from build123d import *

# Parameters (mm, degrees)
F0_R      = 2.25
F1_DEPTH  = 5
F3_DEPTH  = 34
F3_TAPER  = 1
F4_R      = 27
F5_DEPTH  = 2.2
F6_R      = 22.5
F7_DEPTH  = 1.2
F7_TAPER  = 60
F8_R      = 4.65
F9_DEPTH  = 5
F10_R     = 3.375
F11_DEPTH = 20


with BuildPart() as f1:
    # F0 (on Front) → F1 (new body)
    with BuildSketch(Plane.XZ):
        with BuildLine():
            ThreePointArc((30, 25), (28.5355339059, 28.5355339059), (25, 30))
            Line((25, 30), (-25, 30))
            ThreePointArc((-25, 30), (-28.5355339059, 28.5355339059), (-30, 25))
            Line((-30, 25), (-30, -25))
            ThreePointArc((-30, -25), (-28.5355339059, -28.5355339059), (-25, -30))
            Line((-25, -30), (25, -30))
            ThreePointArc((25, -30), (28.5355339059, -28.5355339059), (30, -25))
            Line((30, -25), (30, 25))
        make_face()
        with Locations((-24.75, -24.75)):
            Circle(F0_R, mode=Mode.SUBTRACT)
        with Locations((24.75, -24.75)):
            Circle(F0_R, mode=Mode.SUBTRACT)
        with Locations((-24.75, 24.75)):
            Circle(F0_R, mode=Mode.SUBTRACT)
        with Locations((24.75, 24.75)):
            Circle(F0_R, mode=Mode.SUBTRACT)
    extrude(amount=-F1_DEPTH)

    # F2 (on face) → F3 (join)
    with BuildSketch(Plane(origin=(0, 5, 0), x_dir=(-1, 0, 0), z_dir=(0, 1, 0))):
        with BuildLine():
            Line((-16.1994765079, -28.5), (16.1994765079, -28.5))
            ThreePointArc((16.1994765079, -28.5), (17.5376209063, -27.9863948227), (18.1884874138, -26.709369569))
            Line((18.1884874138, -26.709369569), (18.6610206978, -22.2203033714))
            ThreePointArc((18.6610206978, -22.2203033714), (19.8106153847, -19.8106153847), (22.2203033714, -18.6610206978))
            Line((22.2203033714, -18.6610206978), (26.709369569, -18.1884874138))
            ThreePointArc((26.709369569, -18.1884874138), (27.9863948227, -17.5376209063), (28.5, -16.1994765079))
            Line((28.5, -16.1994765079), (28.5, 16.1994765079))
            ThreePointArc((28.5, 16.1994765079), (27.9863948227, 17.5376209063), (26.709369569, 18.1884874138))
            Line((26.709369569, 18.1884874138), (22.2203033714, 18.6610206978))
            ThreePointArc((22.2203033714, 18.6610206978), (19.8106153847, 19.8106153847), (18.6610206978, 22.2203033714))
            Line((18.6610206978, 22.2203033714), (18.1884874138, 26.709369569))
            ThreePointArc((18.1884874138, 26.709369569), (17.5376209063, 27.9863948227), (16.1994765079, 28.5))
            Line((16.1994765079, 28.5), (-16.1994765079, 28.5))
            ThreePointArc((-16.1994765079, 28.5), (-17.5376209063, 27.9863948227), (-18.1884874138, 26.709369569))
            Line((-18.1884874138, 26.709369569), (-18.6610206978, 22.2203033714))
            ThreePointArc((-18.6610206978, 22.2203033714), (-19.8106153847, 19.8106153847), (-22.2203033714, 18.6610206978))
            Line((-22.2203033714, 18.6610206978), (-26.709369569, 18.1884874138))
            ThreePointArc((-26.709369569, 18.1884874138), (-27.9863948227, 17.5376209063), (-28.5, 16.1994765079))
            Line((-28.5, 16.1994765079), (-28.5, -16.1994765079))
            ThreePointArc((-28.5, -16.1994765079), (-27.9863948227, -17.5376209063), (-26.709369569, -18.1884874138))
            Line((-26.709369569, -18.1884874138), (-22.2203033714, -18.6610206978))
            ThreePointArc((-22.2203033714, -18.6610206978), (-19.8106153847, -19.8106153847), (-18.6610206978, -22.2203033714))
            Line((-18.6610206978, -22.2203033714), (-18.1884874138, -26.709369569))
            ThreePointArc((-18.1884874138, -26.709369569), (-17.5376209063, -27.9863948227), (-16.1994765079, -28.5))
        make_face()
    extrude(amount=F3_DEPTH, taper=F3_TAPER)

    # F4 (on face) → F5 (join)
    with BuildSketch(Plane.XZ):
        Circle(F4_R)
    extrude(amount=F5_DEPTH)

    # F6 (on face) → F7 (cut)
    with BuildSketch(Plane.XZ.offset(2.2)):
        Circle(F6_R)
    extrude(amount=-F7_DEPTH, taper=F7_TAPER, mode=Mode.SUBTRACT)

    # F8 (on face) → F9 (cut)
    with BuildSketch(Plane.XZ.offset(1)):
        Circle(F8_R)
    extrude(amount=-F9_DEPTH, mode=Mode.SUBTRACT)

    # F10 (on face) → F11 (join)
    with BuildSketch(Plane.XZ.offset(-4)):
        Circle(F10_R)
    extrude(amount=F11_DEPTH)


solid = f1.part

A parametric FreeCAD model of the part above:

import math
import FreeCAD as App
import Part
import Sketcher
from FreeCAD import Vector
Q = App.Units.Quantity

doc = App.newDocument("Part")
body = doc.addObject("PartDesign::Body", "Body")

# Sketch on XZ plane
sketch1 = body.newObject("Sketcher::SketchObject", "Sketch")
sketch1.AttachmentSupport = (doc.getObject("XZ_Plane"), [""])
sketch1.MapMode = "FlatFace"
sketch1.addGeometry([
    Part.ArcOfCircle(Part.Circle(Vector(25, 25, 0), Vector(0, 0, 1), 5), math.radians(0), math.radians(90)),  # 0
    Part.LineSegment(Vector(25, 30, 0), Vector(-25, 30, 0)),  # 1
    Part.ArcOfCircle(Part.Circle(Vector(-25, 25, 0), Vector(0, 0, 1), 5), math.radians(90), math.radians(180)),  # 2
    Part.LineSegment(Vector(-30, 25, 0), Vector(-30, -25, 0)),  # 3
    Part.ArcOfCircle(Part.Circle(Vector(-25, -25, 0), Vector(0, 0, 1), 5), math.radians(180), math.radians(270)),  # 4
    Part.LineSegment(Vector(-25, -30, 0), Vector(25, -30, 0)),  # 5
    Part.ArcOfCircle(Part.Circle(Vector(25, -25, 0), Vector(0, 0, 1), 5), math.radians(-90), math.radians(0)),  # 6
    Part.LineSegment(Vector(30, -25, 0), Vector(30, 25, 0)),  # 7
    Part.Circle(Vector(-24.75, -24.75, 0), Vector(0, 0, 1), 2.25),  # 8
    Part.Circle(Vector(24.75, -24.75, 0), Vector(0, 0, 1), 2.25),  # 9
    Part.Circle(Vector(-24.75, 24.75, 0), Vector(0, 0, 1), 2.25),  # 10
    Part.Circle(Vector(24.75, 24.75, 0), Vector(0, 0, 1), 2.25),  # 11
], False)
sketch1.addConstraint([
    Sketcher.Constraint("Tangent", 0, 2, 1, 1),
    Sketcher.Constraint("Tangent", 1, 2, 2, 1),
    Sketcher.Constraint("Tangent", 2, 2, 3, 1),
    Sketcher.Constraint("Tangent", 3, 2, 4, 1),
    Sketcher.Constraint("Tangent", 4, 2, 5, 1),
    Sketcher.Constraint("Tangent", 5, 2, 6, 1),
    Sketcher.Constraint("Tangent", 6, 2, 7, 1),
    Sketcher.Constraint("Tangent", 7, 2, 0, 1),
    Sketcher.Constraint("Horizontal", 1),
    Sketcher.Constraint("Vertical", 3),
    Sketcher.Constraint("Horizontal", 5),
    Sketcher.Constraint("Vertical", 7),
    Sketcher.Constraint("Equal", 0, 2),
    Sketcher.Constraint("Equal", 2, 4),
    Sketcher.Constraint("Equal", 4, 6),
    Sketcher.Constraint("Equal", 8, 9),
    Sketcher.Constraint("Equal", 9, 10),
    Sketcher.Constraint("Equal", 10, 11),
    Sketcher.Constraint("Symmetric", 0, 3, 4, 3, -1, 1),
    Sketcher.Constraint("Symmetric", 9, 3, 10, 3, -1, 1),
    Sketcher.Constraint("Symmetric", 8, 3, 11, 3, -1, 1),
    Sketcher.Constraint("Symmetric", 8, 3, 9, 3, -2),
    Sketcher.Constraint("Equal", 5, 3),
    Sketcher.Constraint("Radius", 0, Q("5 mm")),
    Sketcher.Constraint("Diameter", 8, Q("4.5 mm")),
    Sketcher.Constraint("DistanceX", 1, 2, 1, 1, Q("50 mm")),
    Sketcher.Constraint("DistanceX", 8, 3, 9, 3, Q("49.5 mm")),
    Sketcher.Constraint("DistanceY", 8, 3, 10, 3, Q("49.5 mm")),
])
pad1 = body.newObject("PartDesign::Pad", "Pad")
pad1.Profile = sketch1
pad1.Length = 5
pad1.Reversed = True

# Sketch on XZ plane
sketch2 = body.newObject("Sketcher::SketchObject", "Sketch001")
sketch2.AttachmentSupport = (doc.getObject("XZ_Plane"), [""])
sketch2.MapMode = "FlatFace"
sketch2.AttachmentOffset = App.Placement(Vector(0, 0, -5), App.Rotation())
sketch2.addGeometry([
    Part.LineSegment(Vector(16.199477, -28.5, 0), Vector(-16.199477, -28.5, 0)),  # 0
    Part.ArcOfCircle(Part.Circle(Vector(-16.199477, -26.5, 0), Vector(0, 0, 1), 2), math.radians(-173.990994), math.radians(-90)),  # 1
    Part.LineSegment(Vector(-18.188487, -26.70937, 0), Vector(-18.661021, -22.220303, 0)),  # 2
    Part.ArcOfCircle(Part.Circle(Vector(-22.639043, -22.639043, 0), Vector(0, 0, 1), 4), math.radians(6.009006), math.radians(83.990994)),  # 3
    Part.LineSegment(Vector(-22.220303, -18.661021, 0), Vector(-26.70937, -18.188487, 0)),  # 4
    Part.ArcOfCircle(Part.Circle(Vector(-26.5, -16.199477, 0), Vector(0, 0, 1), 2), math.radians(180), math.radians(263.990994)),  # 5
    Part.LineSegment(Vector(-28.5, -16.199477, 0), Vector(-28.5, 16.199477, 0)),  # 6
    Part.ArcOfCircle(Part.Circle(Vector(-26.5, 16.199477, 0), Vector(0, 0, 1), 2), math.radians(96.009006), math.radians(180)),  # 7
    Part.LineSegment(Vector(-26.70937, 18.188487, 0), Vector(-22.220303, 18.661021, 0)),  # 8
    Part.ArcOfCircle(Part.Circle(Vector(-22.639043, 22.639043, 0), Vector(0, 0, 1), 4), math.radians(-83.990994), math.radians(-6.009006)),  # 9
    Part.LineSegment(Vector(-18.661021, 22.220303, 0), Vector(-18.188487, 26.70937, 0)),  # 10
    Part.ArcOfCircle(Part.Circle(Vector(-16.199477, 26.5, 0), Vector(0, 0, 1), 2), math.radians(90), math.radians(173.990994)),  # 11
    Part.LineSegment(Vector(-16.199477, 28.5, 0), Vector(16.199477, 28.5, 0)),  # 12
    Part.ArcOfCircle(Part.Circle(Vector(16.199477, 26.5, 0), Vector(0, 0, 1), 2), math.radians(6.009006), math.radians(90)),  # 13
    Part.LineSegment(Vector(18.188487, 26.70937, 0), Vector(18.661021, 22.220303, 0)),  # 14
    Part.ArcOfCircle(Part.Circle(Vector(22.639043, 22.639043, 0), Vector(0, 0, 1), 4), math.radians(-173.990994), math.radians(-96.009006)),  # 15
    Part.LineSegment(Vector(22.220303, 18.661021, 0), Vector(26.70937, 18.188487, 0)),  # 16
    Part.ArcOfCircle(Part.Circle(Vector(26.5, 16.199477, 0), Vector(0, 0, 1), 2), math.radians(0), math.radians(83.990994)),  # 17
    Part.LineSegment(Vector(28.5, 16.199477, 0), Vector(28.5, -16.199477, 0)),  # 18
    Part.ArcOfCircle(Part.Circle(Vector(26.5, -16.199477, 0), Vector(0, 0, 1), 2), math.radians(-83.990994), math.radians(0)),  # 19
    Part.LineSegment(Vector(26.70937, -18.188487, 0), Vector(22.220303, -18.661021, 0)),  # 20
    Part.ArcOfCircle(Part.Circle(Vector(22.639043, -22.639043, 0), Vector(0, 0, 1), 4), math.radians(96.009006), math.radians(173.990994)),  # 21
    Part.LineSegment(Vector(18.661021, -22.220303, 0), Vector(18.188487, -26.70937, 0)),  # 22
    Part.ArcOfCircle(Part.Circle(Vector(16.199477, -26.5, 0), Vector(0, 0, 1), 2), math.radians(-90), math.radians(-6.009006)),  # 23
], False)
sketch2.addConstraint([
    Sketcher.Constraint("Tangent", 0, 2, 1, 2),
    Sketcher.Constraint("Tangent", 1, 1, 2, 1),
    Sketcher.Constraint("Tangent", 2, 2, 3, 1),
    Sketcher.Constraint("Tangent", 3, 2, 4, 1),
    Sketcher.Constraint("Tangent", 4, 2, 5, 2),
    Sketcher.Constraint("Tangent", 5, 1, 6, 1),
    Sketcher.Constraint("Tangent", 6, 2, 7, 2),
    Sketcher.Constraint("Tangent", 7, 1, 8, 1),
    Sketcher.Constraint("Tangent", 8, 2, 9, 1),
    Sketcher.Constraint("Tangent", 9, 2, 10, 1),
    Sketcher.Constraint("Tangent", 10, 2, 11, 2),
    Sketcher.Constraint("Tangent", 11, 1, 12, 1),
    Sketcher.Constraint("Tangent", 12, 2, 13, 2),
    Sketcher.Constraint("Tangent", 13, 1, 14, 1),
    Sketcher.Constraint("Tangent", 14, 2, 15, 1),
    Sketcher.Constraint("Tangent", 15, 2, 16, 1),
    Sketcher.Constraint("Tangent", 16, 2, 17, 2),
    Sketcher.Constraint("Tangent", 17, 1, 18, 1),
    Sketcher.Constraint("Tangent", 18, 2, 19, 2),
    Sketcher.Constraint("Tangent", 19, 1, 20, 1),
    Sketcher.Constraint("Tangent", 20, 2, 21, 1),
    Sketcher.Constraint("Tangent", 21, 2, 22, 1),
    Sketcher.Constraint("Tangent", 22, 2, 23, 2),
    Sketcher.Constraint("Tangent", 23, 1, 0, 1),
    Sketcher.Constraint("Horizontal", 0),
    Sketcher.Constraint("Vertical", 6),
    Sketcher.Constraint("Horizontal", 12),
    Sketcher.Constraint("Vertical", 18),
    Sketcher.Constraint("Equal", 1, 5),
    Sketcher.Constraint("Equal", 5, 7),
    Sketcher.Constraint("Equal", 3, 9),
    Sketcher.Constraint("Equal", 7, 11),
    Sketcher.Constraint("Equal", 11, 13),
    Sketcher.Constraint("Equal", 9, 15),
    Sketcher.Constraint("Equal", 13, 17),
    Sketcher.Constraint("Equal", 17, 19),
    Sketcher.Constraint("Equal", 15, 21),
    Sketcher.Constraint("Equal", 19, 23),
    Sketcher.Constraint("Symmetric", 1, 3, 13, 3, -1, 1),
    Sketcher.Constraint("Symmetric", 3, 3, 15, 3, -1, 1),
    Sketcher.Constraint("Symmetric", 5, 3, 17, 3, -1, 1),
    Sketcher.Constraint("Symmetric", 9, 3, 21, 3, -1, 1),
    Sketcher.Constraint("Symmetric", 9, 3, 15, 3, -2),
    Sketcher.Constraint("Perpendicular", 2, 8),
    Sketcher.Constraint("Perpendicular", 4, 10),
    Sketcher.Constraint("Perpendicular", 14, 20),
    Sketcher.Constraint("Perpendicular", 16, 22),
    Sketcher.Constraint("Horizontal", 7, 3, 17, 3),
    Sketcher.Constraint("Equal", 12, 6),
    Sketcher.Constraint("Equal", 2, 4),
    Sketcher.Constraint("Radius", 1, Q("2 mm")),
    Sketcher.Constraint("Radius", 3, Q("4 mm")),
    Sketcher.Constraint("DistanceY", 1, 3, 11, 3, Q("53 mm")),
    Sketcher.Constraint("DistanceX", 0, 2, 0, 1, Q("32.398953 mm")),
    Sketcher.Constraint("DistanceY", 1, 1, -1, 1, Q("26.70937 mm")),
])
pad2 = body.newObject("PartDesign::Pad", "Pad001")
pad2.Profile = sketch2
pad2.Length = 34
pad2.Reversed = True
pad2.TaperAngle = -1

# Sketch on XZ plane
sketch3 = body.newObject("Sketcher::SketchObject", "Sketch002")
sketch3.AttachmentSupport = (doc.getObject("XZ_Plane"), [""])
sketch3.MapMode = "FlatFace"
sketch3.addGeometry(Part.Circle(Vector(0, 0, 0), Vector(0, 0, 1), 27), False)
sketch3.addConstraint([
    Sketcher.Constraint("Coincident", 0, 3, -1, 1),
    Sketcher.Constraint("Diameter", 0, Q("54 mm")),
])
pad3 = body.newObject("PartDesign::Pad", "Pad002")
pad3.Profile = sketch3
pad3.Length = 2.2

# Sketch on XZ plane
sketch4 = body.newObject("Sketcher::SketchObject", "Sketch003")
sketch4.AttachmentSupport = (doc.getObject("XZ_Plane"), [""])
sketch4.MapMode = "FlatFace"
sketch4.AttachmentOffset = App.Placement(Vector(0, 0, 2.2), App.Rotation())
sketch4.addGeometry(Part.Circle(Vector(0, 0, 0), Vector(0, 0, 1), 22.5), False)
sketch4.addConstraint([
    Sketcher.Constraint("Coincident", 0, 3, -1, 1),
    Sketcher.Constraint("Diameter", 0, Q("45 mm")),
])
pocket1 = body.newObject("PartDesign::Pocket", "Pocket")
pocket1.Profile = sketch4
pocket1.Length = 1.2
pocket1.TaperAngle = -60

# Sketch on XZ plane
sketch5 = body.newObject("Sketcher::SketchObject", "Sketch004")
sketch5.AttachmentSupport = (doc.getObject("XZ_Plane"), [""])
sketch5.MapMode = "FlatFace"
sketch5.AttachmentOffset = App.Placement(Vector(0, 0, 1), App.Rotation())
sketch5.addGeometry(Part.Circle(Vector(0, 0, 0), Vector(0, 0, 1), 4.65), False)
sketch5.addConstraint([
    Sketcher.Constraint("Coincident", 0, 3, -1, 1),
    Sketcher.Constraint("Diameter", 0, Q("9.3 mm")),
])
pocket2 = body.newObject("PartDesign::Pocket", "Pocket001")
pocket2.Profile = sketch5
pocket2.Length = 5

# Sketch on XZ plane
sketch6 = body.newObject("Sketcher::SketchObject", "Sketch005")
sketch6.AttachmentSupport = (doc.getObject("XZ_Plane"), [""])
sketch6.MapMode = "FlatFace"
sketch6.AttachmentOffset = App.Placement(Vector(0, 0, -4), App.Rotation())
sketch6.addGeometry(Part.Circle(Vector(0, 0, 0), Vector(0, 0, 1), 3.375), False)
sketch6.addConstraint([
    Sketcher.Constraint("Coincident", 0, 3, -1, 1),
    Sketcher.Constraint("Diameter", 0, Q("6.75 mm")),
])
pad4 = body.newObject("PartDesign::Pad", "Pad003")
pad4.Profile = sketch6
pad4.Length = 20

doc.recompute()
